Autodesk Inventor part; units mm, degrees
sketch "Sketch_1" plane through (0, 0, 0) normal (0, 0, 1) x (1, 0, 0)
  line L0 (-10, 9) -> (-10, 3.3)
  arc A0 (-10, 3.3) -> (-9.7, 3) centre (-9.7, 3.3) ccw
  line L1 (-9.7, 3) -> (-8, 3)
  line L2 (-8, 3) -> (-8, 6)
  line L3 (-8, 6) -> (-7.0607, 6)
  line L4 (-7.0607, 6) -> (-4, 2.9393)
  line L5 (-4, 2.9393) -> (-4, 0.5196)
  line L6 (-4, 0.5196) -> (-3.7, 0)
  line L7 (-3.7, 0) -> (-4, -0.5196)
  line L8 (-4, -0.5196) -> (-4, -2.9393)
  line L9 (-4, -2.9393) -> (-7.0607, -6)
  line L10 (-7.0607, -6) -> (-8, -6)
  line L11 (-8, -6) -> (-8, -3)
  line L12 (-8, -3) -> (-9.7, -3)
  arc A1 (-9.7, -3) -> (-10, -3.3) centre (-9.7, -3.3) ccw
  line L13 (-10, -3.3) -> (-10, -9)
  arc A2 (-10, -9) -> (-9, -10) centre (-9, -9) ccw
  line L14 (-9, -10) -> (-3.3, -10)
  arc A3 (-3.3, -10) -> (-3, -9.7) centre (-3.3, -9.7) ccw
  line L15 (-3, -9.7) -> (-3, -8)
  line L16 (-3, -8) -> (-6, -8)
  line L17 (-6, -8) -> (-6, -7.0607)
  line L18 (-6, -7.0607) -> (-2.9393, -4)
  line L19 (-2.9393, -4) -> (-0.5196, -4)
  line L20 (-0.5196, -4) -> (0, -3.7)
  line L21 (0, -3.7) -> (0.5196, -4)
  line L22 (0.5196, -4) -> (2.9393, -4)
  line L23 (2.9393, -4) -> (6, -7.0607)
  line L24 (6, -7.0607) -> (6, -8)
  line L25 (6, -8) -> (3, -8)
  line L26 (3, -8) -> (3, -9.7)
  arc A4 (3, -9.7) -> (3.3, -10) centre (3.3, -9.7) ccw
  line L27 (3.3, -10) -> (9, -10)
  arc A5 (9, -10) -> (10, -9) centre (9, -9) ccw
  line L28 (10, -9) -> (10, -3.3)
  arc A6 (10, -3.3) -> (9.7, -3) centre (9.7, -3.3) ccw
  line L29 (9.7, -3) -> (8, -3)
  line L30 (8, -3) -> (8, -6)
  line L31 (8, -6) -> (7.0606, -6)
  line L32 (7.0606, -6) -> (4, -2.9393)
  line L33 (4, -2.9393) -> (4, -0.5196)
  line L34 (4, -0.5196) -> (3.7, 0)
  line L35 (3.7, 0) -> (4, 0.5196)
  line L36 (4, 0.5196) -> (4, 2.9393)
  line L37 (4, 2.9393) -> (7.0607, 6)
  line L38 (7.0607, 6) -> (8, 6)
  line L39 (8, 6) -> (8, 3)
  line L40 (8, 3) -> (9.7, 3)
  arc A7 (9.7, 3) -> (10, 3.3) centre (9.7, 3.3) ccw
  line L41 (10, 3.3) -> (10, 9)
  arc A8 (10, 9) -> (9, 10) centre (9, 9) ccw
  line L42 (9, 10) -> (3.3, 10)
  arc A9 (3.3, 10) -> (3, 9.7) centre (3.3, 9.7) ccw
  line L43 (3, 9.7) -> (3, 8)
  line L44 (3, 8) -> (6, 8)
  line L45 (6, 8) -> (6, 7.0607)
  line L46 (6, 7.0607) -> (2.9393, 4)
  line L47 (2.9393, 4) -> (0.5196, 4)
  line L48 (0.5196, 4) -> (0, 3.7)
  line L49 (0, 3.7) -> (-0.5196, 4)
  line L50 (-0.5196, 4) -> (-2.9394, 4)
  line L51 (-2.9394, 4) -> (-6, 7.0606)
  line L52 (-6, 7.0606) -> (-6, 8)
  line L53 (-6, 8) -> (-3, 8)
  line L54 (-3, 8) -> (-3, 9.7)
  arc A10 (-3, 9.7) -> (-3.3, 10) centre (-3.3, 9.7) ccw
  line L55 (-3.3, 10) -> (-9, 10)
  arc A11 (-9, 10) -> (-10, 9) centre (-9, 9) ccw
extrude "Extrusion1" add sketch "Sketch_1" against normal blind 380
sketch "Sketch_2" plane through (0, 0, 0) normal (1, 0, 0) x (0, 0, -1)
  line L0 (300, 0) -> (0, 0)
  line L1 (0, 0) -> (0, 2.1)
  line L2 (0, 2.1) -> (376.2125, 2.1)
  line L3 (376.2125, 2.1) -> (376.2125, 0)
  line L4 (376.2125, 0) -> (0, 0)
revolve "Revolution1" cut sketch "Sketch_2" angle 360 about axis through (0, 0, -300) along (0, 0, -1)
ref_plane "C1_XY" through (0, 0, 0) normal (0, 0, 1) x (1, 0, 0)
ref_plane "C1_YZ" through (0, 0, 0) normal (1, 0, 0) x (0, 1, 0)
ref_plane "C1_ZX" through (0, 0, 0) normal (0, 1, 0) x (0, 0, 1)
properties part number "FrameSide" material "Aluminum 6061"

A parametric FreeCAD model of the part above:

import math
import FreeCAD as App
import Part
import Sketcher

V = App.Vector
Q = App.Units.Quantity

doc = App.newDocument("Part")
body = doc.addObject("PartDesign::Body", "Body")

# Sketch on XY plane
sketch1 = body.newObject("Sketcher::SketchObject", "Sketch")
sketch1.AttachmentSupport = (doc.getObject("XY_Plane"), [""])
sketch1.MapMode = "FlatFace"
sketch1.addGeometry([
    Part.ArcOfCircle(Part.Circle(V(-9, 9, 0), V(0, 0, 1), 1), math.radians(90), math.radians(180)),  # 0
    Part.LineSegment(V(-10, 9, 0), V(-10, 3.3, 0)),  # 1
    Part.ArcOfCircle(Part.Circle(V(-9.7, 3.3, 0), V(0, 0, 1), 0.3), math.radians(180), math.radians(270)),  # 2
    Part.LineSegment(V(-9.7, 3, 0), V(-8, 3, 0)),  # 3
    Part.LineSegment(V(-8, 3, 0), V(-8, 6, 0)),  # 4
    Part.LineSegment(V(-8, 6, 0), V(-7.06, 6, 0)),  # 5
    Part.LineSegment(V(-7.06, 6, 0), V(-4, 2.94, 0)),  # 6
    Part.LineSegment(V(-4, 2.94, 0), V(-4, 0.52, 0)),  # 7
    Part.LineSegment(V(-4, 0.52, 0), V(-3.7, 0, 0)),  # 8
    Part.LineSegment(V(-3.7, 0, 0), V(-4, -0.52, 0)),  # 9
    Part.LineSegment(V(-4, -0.52, 0), V(-4, -2.94, 0)),  # 10
    Part.LineSegment(V(-4, -2.94, 0), V(-7.06, -6, 0)),  # 11
    Part.LineSegment(V(-7.06, -6, 0), V(-8, -6, 0)),  # 12
    Part.LineSegment(V(-8, -6, 0), V(-8, -3, 0)),  # 13
    Part.LineSegment(V(-8, -3, 0), V(-9.7, -3, 0)),  # 14
    Part.ArcOfCircle(Part.Circle(V(-9.7, -3.3, 0), V(0, 0, 1), 0.3), math.radians(90), math.radians(180)),  # 15
    Part.LineSegment(V(-10, -3.3, 0), V(-10, -9, 0)),  # 16
    Part.ArcOfCircle(Part.Circle(V(-9, -9, 0), V(0, 0, 1), 1), math.radians(180), math.radians(270)),  # 17
    Part.LineSegment(V(-9, -10, 0), V(-3.3, -10, 0)),  # 18
    Part.ArcOfCircle(Part.Circle(V(-3.3, -9.7, 0), V(0, 0, 1), 0.3), math.radians(-90), math.radians(0)),  # 19
    Part.LineSegment(V(-3, -9.7, 0), V(-3, -8, 0)),  # 20
    Part.LineSegment(V(-3, -8, 0), V(-6, -8, 0)),  # 21
    Part.LineSegment(V(-6, -8, 0), V(-6, -7.06, 0)),  # 22
    Part.LineSegment(V(-6, -7.06, 0), V(-2.94, -4, 0)),  # 23
    Part.LineSegment(V(-2.94, -4, 0), V(-0.52, -4, 0)),  # 24
    Part.LineSegment(V(-0.52, -4, 0), V(0, -3.7, 0)),  # 25
    Part.LineSegment(V(0, -3.7, 0), V(0.52, -4, 0)),  # 26
    Part.LineSegment(V(0.52, -4, 0), V(2.94, -4, 0)),  # 27
    Part.LineSegment(V(2.94, -4, 0), V(6, -7.06, 0)),  # 28
    Part.LineSegment(V(6, -7.06, 0), V(6, -8, 0)),  # 29
    Part.LineSegment(V(6, -8, 0), V(3, -8, 0)),  # 30
    Part.LineSegment(V(3, -8, 0), V(3, -9.7, 0)),  # 31
    Part.ArcOfCircle(Part.Circle(V(3.3, -9.7, 0), V(0, 0, 1), 0.3), math.radians(180), math.radians(270)),  # 32
    Part.LineSegment(V(3.3, -10, 0), V(9, -10, 0)),  # 33
    Part.ArcOfCircle(Part.Circle(V(9, -9, 0), V(0, 0, 1), 1), math.radians(-90), math.radians(0)),  # 34
    Part.LineSegment(V(10, -9, 0), V(10, -3.3, 0)),  # 35
    Part.ArcOfCircle(Part.Circle(V(9.7, -3.3, 0), V(0, 0, 1), 0.3), math.radians(0), math.radians(90)),  # 36
    Part.LineSegment(V(9.7, -3, 0), V(8, -3, 0)),  # 37
    Part.LineSegment(V(8, -3, 0), V(8, -6, 0)),  # 38
    Part.LineSegment(V(8, -6, 0), V(7.06, -6, 0)),  # 39
    Part.LineSegment(V(7.06, -6, 0), V(4, -2.94, 0)),  # 40
    Part.LineSegment(V(4, -2.94, 0), V(4, -0.52, 0)),  # 41
    Part.LineSegment(V(4, -0.52, 0), V(3.7, 0, 0)),  # 42
    Part.LineSegment(V(3.7, 0, 0), V(4, 0.52, 0)),  # 43
    Part.LineSegment(V(4, 0.52, 0), V(4, 2.94, 0)),  # 44
    Part.LineSegment(V(4, 2.94, 0), V(7.06, 6, 0)),  # 45
    Part.LineSegment(V(7.06, 6, 0), V(8, 6, 0)),  # 46
    Part.LineSegment(V(8, 6, 0), V(8, 3, 0)),  # 47
    Part.LineSegment(V(8, 3, 0), V(9.7, 3, 0)),  # 48
    Part.ArcOfCircle(Part.Circle(V(9.7, 3.3, 0), V(0, 0, 1), 0.3), math.radians(-90), math.radians(0)),  # 49
    Part.LineSegment(V(10, 3.3, 0), V(10, 9, 0)),  # 50
    Part.ArcOfCircle(Part.Circle(V(9, 9, 0), V(0, 0, 1), 1), math.radians(0), math.radians(90)),  # 51
    Part.LineSegment(V(9, 10, 0), V(3.3, 10, 0)),  # 52
    Part.ArcOfCircle(Part.Circle(V(3.3, 9.7, 0), V(0, 0, 1), 0.3), math.radians(90), math.radians(180)),  # 53
    Part.LineSegment(V(3, 9.7, 0), V(3, 8, 0)),  # 54
    Part.LineSegment(V(3, 8, 0), V(6, 8, 0)),  # 55
    Part.LineSegment(V(6, 8, 0), V(6, 7.06, 0)),  # 56
    Part.LineSegment(V(6, 7.06, 0), V(2.94, 4, 0)),  # 57
    Part.LineSegment(V(2.94, 4, 0), V(0.52, 4, 0)),  # 58
    Part.LineSegment(V(0.52, 4, 0), V(0, 3.7, 0)),  # 59
    Part.LineSegment(V(0, 3.7, 0), V(-0.52, 4, 0)),  # 60
    Part.LineSegment(V(-0.52, 4, 0), V(-2.94, 4, 0)),  # 61
    Part.LineSegment(V(-2.94, 4, 0), V(-6, 7.06, 0)),  # 62
    Part.LineSegment(V(-6, 7.06, 0), V(-6, 8, 0)),  # 63
    Part.LineSegment(V(-6, 8, 0), V(-3, 8, 0)),  # 64
    Part.LineSegment(V(-3, 8, 0), V(-3, 9.7, 0)),  # 65
    Part.ArcOfCircle(Part.Circle(V(-3.3, 9.7, 0), V(0, 0, 1), 0.3), math.radians(0), math.radians(90)),  # 66
    Part.LineSegment(V(-3.3, 10, 0), V(-9, 10, 0)),  # 67
], False)
sketch1.addConstraint([
    Sketcher.Constraint("Tangent", 0, 2, 1, 1),
    Sketcher.Constraint("Tangent", 1, 2, 2, 1),
    Sketcher.Constraint("Tangent", 2, 2, 3, 1),
    Sketcher.Constraint("Coincident", 3, 2, 4, 1),
    Sketcher.Constraint("Coincident", 4, 2, 5, 1),
    Sketcher.Constraint("Coincident", 5, 2, 6, 1),
    Sketcher.Constraint("Coincident", 6, 2, 7, 1),
    Sketcher.Constraint("Coincident", 7, 2, 8, 1),
    Sketcher.Constraint("Coincident", 8, 2, 9, 1),
    Sketcher.Constraint("Coincident", 9, 2, 10, 1),
    Sketcher.Constraint("Coincident", 10, 2, 11, 1),
    Sketcher.Constraint("Coincident", 11, 2, 12, 1),
    Sketcher.Constraint("Coincident", 12, 2, 13, 1),
    Sketcher.Constraint("Coincident", 13, 2, 14, 1),
    Sketcher.Constraint("Tangent", 14, 2, 15, 1),
    Sketcher.Constraint("Tangent", 15, 2, 16, 1),
    Sketcher.Constraint("Tangent", 16, 2, 17, 1),
    Sketcher.Constraint("Tangent", 17, 2, 18, 1),
    Sketcher.Constraint("Tangent", 18, 2, 19, 1),
    Sketcher.Constraint("Tangent", 19, 2, 20, 1),
    Sketcher.Constraint("Coincident", 20, 2, 21, 1),
    Sketcher.Constraint("Coincident", 21, 2, 22, 1),
    Sketcher.Constraint("Coincident", 22, 2, 23, 1),
    Sketcher.Constraint("Coincident", 23, 2, 24, 1),
    Sketcher.Constraint("Coincident", 24, 2, 25, 1),
    Sketcher.Constraint("Coincident", 25, 2, 26, 1),
    Sketcher.Constraint("Coincident", 26, 2, 27, 1),
    Sketcher.Constraint("Coincident", 27, 2, 28, 1),
    Sketcher.Constraint("Coincident", 28, 2, 29, 1),
    Sketcher.Constraint("Coincident", 29, 2, 30, 1),
    Sketcher.Constraint("Coincident", 30, 2, 31, 1),
    Sketcher.Constraint("Tangent", 31, 2, 32, 1),
    Sketcher.Constraint("Tangent", 32, 2, 33, 1),
    Sketcher.Constraint("Tangent", 33, 2, 34, 1),
    Sketcher.Constraint("Tangent", 34, 2, 35, 1),
    Sketcher.Constraint("Tangent", 35, 2, 36, 1),
    Sketcher.Constraint("Tangent", 36, 2, 37, 1),
    Sketcher.Constraint("Coincident", 37, 2, 38, 1),
    Sketcher.Constraint("Coincident", 38, 2, 39, 1),
    Sketcher.Constraint("Coincident", 39, 2, 40, 1),
    Sketcher.Constraint("Coincident", 40, 2, 41, 1),
    Sketcher.Constraint("Coincident", 41, 2, 42, 1),
    Sketcher.Constraint("Coincident", 42, 2, 43, 1),
    Sketcher.Constraint("Coincident", 43, 2, 44, 1),
    Sketcher.Constraint("Coincident", 44, 2, 45, 1),
    Sketcher.Constraint("Coincident", 45, 2, 46, 1),
    Sketcher.Constraint("Coincident", 46, 2, 47, 1),
    Sketcher.Constraint("Coincident", 47, 2, 48, 1),
    Sketcher.Constraint("Tangent", 48, 2, 49, 1),
    Sketcher.Constraint("Tangent", 49, 2, 50, 1),
    Sketcher.Constraint("Tangent", 50, 2, 51, 1),
    Sketcher.Constraint("Tangent", 51, 2, 52, 1),
    Sketcher.Constraint("Tangent", 52, 2, 53, 1),
    Sketcher.Constraint("Tangent", 53, 2, 54, 1),
    Sketcher.Constraint("Coincident", 54, 2, 55, 1),
    Sketcher.Constraint("Coincident", 55, 2, 56, 1),
    Sketcher.Constraint("Coincident", 56, 2, 57, 1),
    Sketcher.Constraint("Coincident", 57, 2, 58, 1),
    Sketcher.Constraint("Coincident", 58, 2, 59, 1),
    Sketcher.Constraint("Coincident", 59, 2, 60, 1),
    Sketcher.Constraint("Coincident", 60, 2, 61, 1),
    Sketcher.Constraint("Coincident", 61, 2, 62, 1),
    Sketcher.Constraint("Coincident", 62, 2, 63, 1),
    Sketcher.Constraint("Coincident", 63, 2, 64, 1),
    Sketcher.Constraint("Coincident", 64, 2, 65, 1),
    Sketcher.Constraint("Tangent", 65, 2, 66, 1),
    Sketcher.Constraint("Tangent", 66, 2, 67, 1),
    Sketcher.Constraint("Tangent", 67, 2, 0, 1),
    Sketcher.Constraint("Vertical", 1),
    Sketcher.Constraint("Horizontal", 3),
    Sketcher.Constraint("Vertical", 4),
    Sketcher.Constraint("Horizontal", 5),
    Sketcher.Constraint("Vertical", 7),
    Sketcher.Constraint("Vertical", 10),
    Sketcher.Constraint("Horizontal", 12),
    Sketcher.Constraint("Vertical", 13),
    Sketcher.Constraint("Horizontal", 14),
    Sketcher.Constraint("Vertical", 16),
    Sketcher.Constraint("Horizontal", 18),
    Sketcher.Constraint("Vertical", 20),
    Sketcher.Constraint("Horizontal", 21),
    Sketcher.Constraint("Vertical", 22),
    Sketcher.Constraint("Horizontal", 24),
    Sketcher.Constraint("Horizontal", 27),
    Sketcher.Constraint("Vertical", 29),
    Sketcher.Constraint("Horizontal", 30),
    Sketcher.Constraint("Vertical", 31),
    Sketcher.Constraint("Horizontal", 33),
    Sketcher.Constraint("Vertical", 35),
    Sketcher.Constraint("Horizontal", 37),
    Sketcher.Constraint("Vertical", 38),
    Sketcher.Constraint("Horizontal", 39),
    Sketcher.Constraint("Vertical", 41),
    Sketcher.Constraint("Vertical", 44),
    Sketcher.Constraint("Horizontal", 46),
    Sketcher.Constraint("Vertical", 47),
    Sketcher.Constraint("Horizontal", 48),
    Sketcher.Constraint("Vertical", 50),
    Sketcher.Constraint("Horizontal", 52),
    Sketcher.Constraint("Vertical", 54),
    Sketcher.Constraint("Horizontal", 55),
    Sketcher.Constraint("Vertical", 56),
    Sketcher.Constraint("Horizontal", 58),
    Sketcher.Constraint("Horizontal", 61),
    Sketcher.Constraint("Vertical", 63),
    Sketcher.Constraint("Horizontal", 64),
    Sketcher.Constraint("Vertical", 65),
    Sketcher.Constraint("Horizontal", 67),
    Sketcher.Constraint("Equal", 2, 15),
    Sketcher.Constraint("Equal", 0, 17),
    Sketcher.Constraint("Equal", 15, 19),
    Sketcher.Constraint("Equal", 19, 32),
    Sketcher.Constraint("Equal", 17, 34),
    Sketcher.Constraint("Equal", 32, 36),
    Sketcher.Constraint("Equal", 36, 49),
    Sketcher.Constraint("Equal", 34, 51),
    Sketcher.Constraint("Equal", 49, 53),
    Sketcher.Constraint("Equal", 53, 66),
    Sketcher.Constraint("Symmetric", 0, 3, 34, 3, -1, 1),
    Sketcher.Constraint("Symmetric", 15, 3, 49, 3, -1, 1),
    Sketcher.Constraint("Symmetric", 19, 3, 53, 3, -1, 1),
    Sketcher.Constraint("Symmetric", 3, 2, 37, 2, -1, 1),
    Sketcher.Constraint("Symmetric", 5, 2, 39, 2, -1, 1),
    Sketcher.Constraint("Symmetric", 6, 2, 40, 2, -1, 1),
    Sketcher.Constraint("Symmetric", 8, 2, 42, 2, -1, 1),
    Sketcher.Constraint("Symmetric", 9, 2, 43, 2, -1, 1),
    Sketcher.Constraint("Symmetric", 11, 2, 45, 2, -1, 1),
    Sketcher.Constraint("Symmetric", 21, 2, 55, 2, -1, 1),
    Sketcher.Constraint("Symmetric", 23, 2, 57, 2, -1, 1),
    Sketcher.Constraint("Symmetric", 25, 2, 59, 2, -1, 1),
    Sketcher.Constraint("Symmetric", 26, 2, 60, 2, -1, 1),
    Sketcher.Constraint("Symmetric", 28, 2, 62, 2, -1, 1),
    Sketcher.Constraint("Symmetric", 30, 2, 64, 2, -1, 1),
    Sketcher.Constraint("Symmetric", 19, 3, 32, 3, -2),
    Sketcher.Constraint("Symmetric", 15, 3, 36, 3, -2),
    Sketcher.Constraint("Symmetric", 24, 2, 26, 2, -2),
    Sketcher.Constraint("Symmetric", 22, 2, 28, 2, -2),
    Sketcher.Constraint("Symmetric", 12, 2, 38, 2, -2),
    Sketcher.Constraint("Symmetric", 10, 2, 40, 2, -2),
    Sketcher.Constraint("PointOnObject", 8, 2, -1),
    Sketcher.Constraint("PointOnObject", 25, 2, -2),
    Sketcher.Constraint("Perpendicular", 6, 11),
    Sketcher.Constraint("Parallel", 11, 23),
    Sketcher.Constraint("Perpendicular", 8, 25),
    Sketcher.Constraint("Perpendicular", 9, 26),
    Sketcher.Constraint("Perpendicular", 23, 28),
    Sketcher.Constraint("Perpendicular", 25, 42),
    Sketcher.Constraint("Perpendicular", 40, 45),
    Sketcher.Constraint("Parallel", 45, 57),
    Sketcher.Constraint("Perpendicular", 42, 59),
    Sketcher.Constraint("Perpendicular", 57, 62),
    Sketcher.Constraint("Horizontal", 21, 2, 29, 2),
    Sketcher.Constraint("Vertical", 5, 2, 11, 2),
    Sketcher.Constraint("Vertical", 38, 2, 46, 2),
    Sketcher.Constraint("Equal", 67, 1),
    Sketcher.Constraint("Equal", 64, 4),
    Sketcher.Constraint("Equal", 61, 7),
    Sketcher.Constraint("Equal", 48, 20),
    Sketcher.Constraint("Equal", 46, 22),
    Sketcher.Constraint("Equal", 11, 23),
    Sketcher.Constraint("Equal", 9, 25),
    Sketcher.Constraint("Radius", 0, Q("1 mm")),
    Sketcher.Constraint("Radius", 2, Q("0.3 mm")),
    Sketcher.Constraint("DistanceX", 21, 2, 21, 1, Q("3 mm")),
    Sketcher.Constraint("Angle", 8, Q("-59.9993 deg")),
    Sketcher.Constraint("DistanceX", 3, 1, 3, 2, Q("1.7 mm")),
    Sketcher.Constraint("DistanceX", 18, 1, 18, 2, Q("5.7 mm")),
    Sketcher.Constraint("DistanceX", 0, 3, -1, 1, Q("9 mm")),
    Sketcher.Constraint("DistanceX", 6, 2, -1, 1, Q("4 mm")),
    Sketcher.Constraint("Distance", 8, Q("0.6 mm")),
    Sketcher.Constraint("DistanceX", 5, 1, 5, 2, Q("0.9393 mm")),
])
pad1 = body.newObject("PartDesign::Pad", "Pad")
pad1.Profile = sketch1
pad1.Length = 380
pad1.Reversed = True

# Sketch on YZ plane
sketch2 = body.newObject("Sketcher::SketchObject", "Sketch001")
sketch2.AttachmentSupport = (doc.getObject("YZ_Plane"), [""])
sketch2.MapMode = "FlatFace"
sketch2.addGeometry([
    Part.LineSegment(V(0, 0, 0), V(0, -376.2, 0)),
    Part.LineSegment(V(0, -376.2, 0), V(2.1, -376.2, 0)),
    Part.LineSegment(V(2.1, -376.2, 0), V(2.1, 0, 0)),
    Part.LineSegment(V(2.1, 0, 0), V(0, 0, 0)),
], False)
sketch2.addConstraint([
    Sketcher.Constraint("Coincident", 0, 2, 1, 1),
    Sketcher.Constraint("Coincident", 1, 2, 2, 1),
    Sketcher.Constraint("Coincident", 2, 2, 3, 1),
    Sketcher.Constraint("Coincident", 3, 2, 0, 1),
    Sketcher.Constraint("Vertical", 0),
    Sketcher.Constraint("Horizontal", 1),
    Sketcher.Constraint("Vertical", 2),
    Sketcher.Constraint("Horizontal", 3),
    Sketcher.Constraint("Coincident", 3, 2, -1, 1),
    Sketcher.Constraint("DistanceX", 1, 1, 1, 2, Q("2.1 mm")),
    Sketcher.Constraint("DistanceY", 0, 2, 0, 1, Q("376.2125 mm")),
])
groove = body.newObject("PartDesign::Groove", "Groove")
groove.Profile = sketch2
groove.ReferenceAxis = (sketch2, ["V_Axis"])
groove.Angle = 360

doc.recompute()
